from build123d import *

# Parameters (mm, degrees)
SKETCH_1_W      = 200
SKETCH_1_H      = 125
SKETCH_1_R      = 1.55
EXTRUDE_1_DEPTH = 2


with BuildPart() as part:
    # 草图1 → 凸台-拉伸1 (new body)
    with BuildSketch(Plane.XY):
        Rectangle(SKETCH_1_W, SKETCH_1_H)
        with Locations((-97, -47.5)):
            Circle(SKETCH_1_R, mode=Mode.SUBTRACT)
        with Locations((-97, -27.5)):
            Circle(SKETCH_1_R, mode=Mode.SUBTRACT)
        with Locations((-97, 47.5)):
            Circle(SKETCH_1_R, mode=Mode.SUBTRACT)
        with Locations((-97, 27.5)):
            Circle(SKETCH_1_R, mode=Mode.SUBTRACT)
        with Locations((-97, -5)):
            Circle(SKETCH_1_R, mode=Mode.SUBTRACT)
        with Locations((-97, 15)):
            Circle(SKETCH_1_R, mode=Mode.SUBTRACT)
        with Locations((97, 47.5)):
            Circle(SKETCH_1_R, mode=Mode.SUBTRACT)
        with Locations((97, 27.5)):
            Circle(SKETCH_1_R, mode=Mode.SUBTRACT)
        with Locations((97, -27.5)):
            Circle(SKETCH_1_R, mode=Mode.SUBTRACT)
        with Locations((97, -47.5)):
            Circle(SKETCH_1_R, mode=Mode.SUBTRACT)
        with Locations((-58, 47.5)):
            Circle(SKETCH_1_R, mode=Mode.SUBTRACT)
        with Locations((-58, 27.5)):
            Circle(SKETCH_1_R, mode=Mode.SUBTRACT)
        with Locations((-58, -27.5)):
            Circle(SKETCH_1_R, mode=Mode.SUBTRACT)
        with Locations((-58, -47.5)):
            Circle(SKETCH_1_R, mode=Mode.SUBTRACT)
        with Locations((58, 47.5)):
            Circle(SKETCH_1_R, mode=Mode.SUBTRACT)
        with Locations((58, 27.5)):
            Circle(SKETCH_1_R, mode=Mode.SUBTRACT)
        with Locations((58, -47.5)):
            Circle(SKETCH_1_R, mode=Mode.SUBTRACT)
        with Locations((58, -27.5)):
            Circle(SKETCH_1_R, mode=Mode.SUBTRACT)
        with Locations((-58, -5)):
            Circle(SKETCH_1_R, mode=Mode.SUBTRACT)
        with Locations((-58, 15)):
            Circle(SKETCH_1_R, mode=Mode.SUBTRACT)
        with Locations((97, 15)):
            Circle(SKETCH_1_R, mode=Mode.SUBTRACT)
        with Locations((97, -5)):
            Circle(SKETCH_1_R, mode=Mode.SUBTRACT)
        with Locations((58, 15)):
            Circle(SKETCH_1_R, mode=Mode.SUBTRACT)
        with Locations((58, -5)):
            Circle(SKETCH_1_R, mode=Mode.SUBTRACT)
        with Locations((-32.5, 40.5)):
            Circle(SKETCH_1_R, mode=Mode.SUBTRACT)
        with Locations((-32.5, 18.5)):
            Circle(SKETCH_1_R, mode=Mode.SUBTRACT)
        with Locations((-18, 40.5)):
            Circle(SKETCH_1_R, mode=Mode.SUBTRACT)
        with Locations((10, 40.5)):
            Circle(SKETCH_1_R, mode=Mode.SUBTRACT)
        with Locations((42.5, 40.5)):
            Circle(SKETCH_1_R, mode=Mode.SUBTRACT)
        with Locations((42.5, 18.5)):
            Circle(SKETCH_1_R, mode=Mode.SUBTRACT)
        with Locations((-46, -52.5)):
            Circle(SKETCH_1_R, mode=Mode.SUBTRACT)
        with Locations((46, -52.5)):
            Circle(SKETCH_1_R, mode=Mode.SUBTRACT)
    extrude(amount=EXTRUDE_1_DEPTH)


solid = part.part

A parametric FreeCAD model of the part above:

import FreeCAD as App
import Part
import Sketcher

V = App.Vector


def add_polygon(sketch, points):
    """Adds a closed chain of lines whose ends are joined by coincident constraints."""
    first, n = sketch.GeometryCount, len(points)
    for a, b in zip(points, points[1:] + points[:1]):
        sketch.addGeometry(Part.LineSegment(App.Vector(*a, 0), App.Vector(*b, 0)), False)
    for i in range(n):
        sketch.addConstraint(Sketcher.Constraint("Coincident", first + i, 2, first + (i + 1) % n, 1))

doc = App.newDocument("Part")
body = doc.addObject("PartDesign::Body", "Body")

sketch1 = doc.addObject("Sketcher::SketchObject", "Sketch")
body.addObject(sketch1)
sketch1.AttachmentSupport = (doc.XY_Plane, [""])
sketch1.MapMode = "FlatFace"
add_polygon(sketch1, [(-100, 62.5), (-100, -62.5), (100, -62.5), (100, 62.5)])
sketch1.addGeometry(Part.Circle(V(-97, -47.5, 0), V(0, 0, 1), 1.6), False)
sketch1.addGeometry(Part.Circle(V(-58, -47.5, 0), V(0, 0, 1), 1.6), False)
sketch1.addGeometry(Part.Circle(V(-46, -52.5, 0), V(0, 0, 1), 1.6), False)
sketch1.addGeometry(Part.Circle(V(-97, -27.5, 0), V(0, 0, 1), 1.6), False)
sketch1.addGeometry(Part.Circle(V(-58, -27.5, 0), V(0, 0, 1), 1.6), False)
sketch1.addGeometry(Part.Circle(V(-97, -5, 0), V(0, 0, 1), 1.6), False)
sketch1.addGeometry(Part.Circle(V(-58, -5, 0), V(0, 0, 1), 1.6), False)
sketch1.addGeometry(Part.Circle(V(46, -52.5, 0), V(0, 0, 1), 1.6), False)
sketch1.addGeometry(Part.Circle(V(58, -47.5, 0), V(0, 0, 1), 1.6), False)
sketch1.addGeometry(Part.Circle(V(97, -47.5, 0), V(0, 0, 1), 1.6), False)
sketch1.addGeometry(Part.Circle(V(58, -27.5, 0), V(0, 0, 1), 1.6), False)
sketch1.addGeometry(Part.Circle(V(97, -27.5, 0), V(0, 0, 1), 1.6), False)
sketch1.addGeometry(Part.Circle(V(58, -5, 0), V(0, 0, 1), 1.6), False)
sketch1.addGeometry(Part.Circle(V(97, -5, 0), V(0, 0, 1), 1.6), False)
sketch1.addGeometry(Part.Circle(V(-97, 15, 0), V(0, 0, 1), 1.6), False)
sketch1.addGeometry(Part.Circle(V(-58, 15, 0), V(0, 0, 1), 1.6), False)
sketch1.addGeometry(Part.Circle(V(-32.5, 18.5, 0), V(0, 0, 1), 1.6), False)
sketch1.addGeometry(Part.Circle(V(-97, 27.5, 0), V(0, 0, 1), 1.6), False)
sketch1.addGeometry(Part.Circle(V(-58, 27.5, 0), V(0, 0, 1), 1.6), False)
sketch1.addGeometry(Part.Circle(V(-97, 47.5, 0), V(0, 0, 1), 1.6), False)
sketch1.addGeometry(Part.Circle(V(-58, 47.5, 0), V(0, 0, 1), 1.6), False)
sketch1.addGeometry(Part.Circle(V(-32.5, 40.5, 0), V(0, 0, 1), 1.6), False)
sketch1.addGeometry(Part.Circle(V(-18, 40.5, 0), V(0, 0, 1), 1.6), False)
sketch1.addGeometry(Part.Circle(V(42.5, 18.5, 0), V(0, 0, 1), 1.6), False)
sketch1.addGeometry(Part.Circle(V(58, 15, 0), V(0, 0, 1), 1.6), False)
sketch1.addGeometry(Part.Circle(V(97, 15, 0), V(0, 0, 1), 1.6), False)
sketch1.addGeometry(Part.Circle(V(10, 40.5, 0), V(0, 0, 1), 1.6), False)
sketch1.addGeometry(Part.Circle(V(42.5, 40.5, 0), V(0, 0, 1), 1.6), False)
sketch1.addGeometry(Part.Circle(V(58, 27.5, 0), V(0, 0, 1), 1.6), False)
sketch1.addGeometry(Part.Circle(V(97, 27.5, 0), V(0, 0, 1), 1.6), False)
sketch1.addGeometry(Part.Circle(V(58, 47.5, 0), V(0, 0, 1), 1.6), False)
sketch1.addGeometry(Part.Circle(V(97, 47.5, 0), V(0, 0, 1), 1.6), False)
sketch1.addConstraint(Sketcher.Constraint("Vertical", 0))
sketch1.addConstraint(Sketcher.Constraint("Horizontal", 1))
sketch1.addConstraint(Sketcher.Constraint("Vertical", 2))
sketch1.addConstraint(Sketcher.Constraint("Horizontal", 3))
sketch1.addConstraint(Sketcher.Constraint("Equal", 4, 5))
sketch1.addConstraint(Sketcher.Constraint("Equal", 5, 6))
sketch1.addConstraint(Sketcher.Constraint("Equal", 6, 7))
sketch1.addConstraint(Sketcher.Constraint("Equal", 7, 8))
sketch1.addConstraint(Sketcher.Constraint("Equal", 8, 9))
sketch1.addConstraint(Sketcher.Constraint("Equal", 9, 10))
sketch1.addConstraint(Sketcher.Constraint("Equal", 10, 11))
sketch1.addConstraint(Sketcher.Constraint("Equal", 11, 12))
sketch1.addConstraint(Sketcher.Constraint("Equal", 12, 13))
sketch1.addConstraint(Sketcher.Constraint("Equal", 13, 14))
sketch1.addConstraint(Sketcher.Constraint("Equal", 14, 15))
sketch1.addConstraint(Sketcher.Constraint("Equal", 15, 16))
sketch1.addConstraint(Sketcher.Constraint("Equal", 16, 17))
sketch1.addConstraint(Sketcher.Constraint("Equal", 17, 18))
sketch1.addConstraint(Sketcher.Constraint("Equal", 18, 19))
sketch1.addConstraint(Sketcher.Constraint("Equal", 19, 20))
sketch1.addConstraint(Sketcher.Constraint("Equal", 20, 21))
sketch1.addConstraint(Sketcher.Constraint("Equal", 21, 22))
sketch1.addConstraint(Sketcher.Constraint("Equal", 22, 23))
sketch1.addConstraint(Sketcher.Constraint("Equal", 23, 24))
sketch1.addConstraint(Sketcher.Constraint("Equal", 24, 25))
sketch1.addConstraint(Sketcher.Constraint("Equal", 25, 26))
sketch1.addConstraint(Sketcher.Constraint("Equal", 26, 27))
sketch1.addConstraint(Sketcher.Constraint("Equal", 27, 28))
sketch1.addConstraint(Sketcher.Constraint("Equal", 28, 29))
sketch1.addConstraint(Sketcher.Constraint("Equal", 29, 30))
sketch1.addConstraint(Sketcher.Constraint("Equal", 30, 31))
sketch1.addConstraint(Sketcher.Constraint("Equal", 31, 32))
sketch1.addConstraint(Sketcher.Constraint("Equal", 32, 33))
sketch1.addConstraint(Sketcher.Constraint("Equal", 33, 34))
sketch1.addConstraint(Sketcher.Constraint("Equal", 34, 35))
sketch1.addConstraint(Sketcher.Constraint("Symmetric", 15, 3, 21, 3, -1, 1))
sketch1.addConstraint(Sketcher.Constraint("Symmetric", 14, 3, 22, 3, -1, 1))
sketch1.addConstraint(Sketcher.Constraint("Symmetric", 13, 3, 23, 3, -1, 1))
sketch1.addConstraint(Sketcher.Constraint("Symmetric", 12, 3, 24, 3, -1, 1))
sketch1.addConstraint(Sketcher.Constraint("Symmetric", 8, 3, 32, 3, -1, 1))
sketch1.addConstraint(Sketcher.Constraint("Symmetric", 7, 3, 33, 3, -1, 1))
sketch1.addConstraint(Sketcher.Constraint("Symmetric", 5, 3, 34, 3, -1, 1))
sketch1.addConstraint(Sketcher.Constraint("Symmetric", 4, 3, 35, 3, -1, 1))
sketch1.addConstraint(Sketcher.Constraint("Symmetric", 0, 2, 2, 2, -1, 1))
sketch1.addConstraint(Sketcher.Constraint("Symmetric", 6, 3, 11, 3, -2))
sketch1.addConstraint(Sketcher.Constraint("Symmetric", 5, 3, 12, 3, -2))
sketch1.addConstraint(Sketcher.Constraint("Symmetric", 4, 3, 13, 3, -2))
sketch1.addConstraint(Sketcher.Constraint("Symmetric", 8, 3, 14, 3, -2))
sketch1.addConstraint(Sketcher.Constraint("Symmetric", 7, 3, 15, 3, -2))
sketch1.addConstraint(Sketcher.Constraint("Symmetric", 10, 3, 16, 3, -2))
sketch1.addConstraint(Sketcher.Constraint("Symmetric", 9, 3, 17, 3, -2))
sketch1.addConstraint(Sketcher.Constraint("Symmetric", 19, 3, 28, 3, -2))
sketch1.addConstraint(Sketcher.Constraint("Symmetric", 18, 3, 29, 3, -2))
sketch1.addConstraint(Sketcher.Constraint("Horizontal", 4, 3, 5, 3))
sketch1.addConstraint(Sketcher.Constraint("Horizontal", 7, 3, 8, 3))
sketch1.addConstraint(Sketcher.Constraint("Horizontal", 9, 3, 10, 3))
sketch1.addConstraint(Sketcher.Constraint("Horizontal", 18, 3, 19, 3))
sketch1.addConstraint(Sketcher.Constraint("Horizontal", 25, 3, 26, 3))
sketch1.addConstraint(Sketcher.Constraint("Horizontal", 20, 3, 27, 3))
sketch1.addConstraint(Sketcher.Constraint("Horizontal", 26, 3, 30, 3))
sketch1.addConstraint(Sketcher.Constraint("Horizontal", 30, 3, 31, 3))
sketch1.addConstraint(Sketcher.Constraint("Vertical", 4, 3, 7, 3))
sketch1.addConstraint(Sketcher.Constraint("Vertical", 5, 3, 8, 3))
sketch1.addConstraint(Sketcher.Constraint("Vertical", 7, 3, 9, 3))
sketch1.addConstraint(Sketcher.Constraint("Vertical", 8, 3, 10, 3))
sketch1.addConstraint(Sketcher.Constraint("Vertical", 9, 3, 18, 3))
sketch1.addConstraint(Sketcher.Constraint("Vertical", 10, 3, 19, 3))
sketch1.addConstraint(Sketcher.Constraint("Vertical", 20, 3, 25, 3))
sketch1.addConstraint(Sketcher.Constraint("Vertical", 27, 3, 31, 3))
sketch1.addConstraint(Sketcher.Constraint("Diameter", 4, 3.1))
sketch1.addConstraint(Sketcher.Constraint("DistanceX", 1, 1, 1, 2, 200.0))
sketch1.addConstraint(Sketcher.Constraint("DistanceY", 0, 2, 0, 1, 125.0))
sketch1.addConstraint(Sketcher.Constraint("DistanceX", 4, 3, -1, 1, 97.0))
sketch1.addConstraint(Sketcher.Constraint("DistanceX", 5, 3, -1, 1, 58.0))
sketch1.addConstraint(Sketcher.Constraint("DistanceX", 6, 3, -1, 1, 46.0))
sketch1.addConstraint(Sketcher.Constraint("DistanceY", 9, 3, -1, 1, 5.0))
sketch1.addConstraint(Sketcher.Constraint("DistanceY", -1, 1, 18, 3, 15.0))
sketch1.addConstraint(Sketcher.Constraint("DistanceX", 26, 3, -1, 1, 18.0))
sketch1.addConstraint(Sketcher.Constraint("DistanceX", -1, 1, 30, 3, 10.0))
sketch1.addConstraint(Sketcher.Constraint("DistanceY", 6, 3, 5, 3, 5.0))
sketch1.addConstraint(Sketcher.Constraint("DistanceY", 4, 3, 7, 3, 20.0))
sketch1.addConstraint(Sketcher.Constraint("DistanceY", 8, 3, 20, 3, 46.0))
sketch1.addConstraint(Sketcher.Constraint("DistanceY", 7, 3, 21, 3, 55.0))
sketch1.addConstraint(Sketcher.Constraint("DistanceY", 20, 3, 25, 3, 22.0))
sketch1.addConstraint(Sketcher.Constraint("DistanceX", 20, 3, -1, 1, 32.5))
sketch1.addConstraint(Sketcher.Constraint("DistanceX", -1, 1, 27, 3, 42.5))
pad1 = doc.addObject("PartDesign::Pad", "Pad")
body.addObject(pad1)
pad1.Profile = sketch1
pad1.Length = 2

doc.recompute()
